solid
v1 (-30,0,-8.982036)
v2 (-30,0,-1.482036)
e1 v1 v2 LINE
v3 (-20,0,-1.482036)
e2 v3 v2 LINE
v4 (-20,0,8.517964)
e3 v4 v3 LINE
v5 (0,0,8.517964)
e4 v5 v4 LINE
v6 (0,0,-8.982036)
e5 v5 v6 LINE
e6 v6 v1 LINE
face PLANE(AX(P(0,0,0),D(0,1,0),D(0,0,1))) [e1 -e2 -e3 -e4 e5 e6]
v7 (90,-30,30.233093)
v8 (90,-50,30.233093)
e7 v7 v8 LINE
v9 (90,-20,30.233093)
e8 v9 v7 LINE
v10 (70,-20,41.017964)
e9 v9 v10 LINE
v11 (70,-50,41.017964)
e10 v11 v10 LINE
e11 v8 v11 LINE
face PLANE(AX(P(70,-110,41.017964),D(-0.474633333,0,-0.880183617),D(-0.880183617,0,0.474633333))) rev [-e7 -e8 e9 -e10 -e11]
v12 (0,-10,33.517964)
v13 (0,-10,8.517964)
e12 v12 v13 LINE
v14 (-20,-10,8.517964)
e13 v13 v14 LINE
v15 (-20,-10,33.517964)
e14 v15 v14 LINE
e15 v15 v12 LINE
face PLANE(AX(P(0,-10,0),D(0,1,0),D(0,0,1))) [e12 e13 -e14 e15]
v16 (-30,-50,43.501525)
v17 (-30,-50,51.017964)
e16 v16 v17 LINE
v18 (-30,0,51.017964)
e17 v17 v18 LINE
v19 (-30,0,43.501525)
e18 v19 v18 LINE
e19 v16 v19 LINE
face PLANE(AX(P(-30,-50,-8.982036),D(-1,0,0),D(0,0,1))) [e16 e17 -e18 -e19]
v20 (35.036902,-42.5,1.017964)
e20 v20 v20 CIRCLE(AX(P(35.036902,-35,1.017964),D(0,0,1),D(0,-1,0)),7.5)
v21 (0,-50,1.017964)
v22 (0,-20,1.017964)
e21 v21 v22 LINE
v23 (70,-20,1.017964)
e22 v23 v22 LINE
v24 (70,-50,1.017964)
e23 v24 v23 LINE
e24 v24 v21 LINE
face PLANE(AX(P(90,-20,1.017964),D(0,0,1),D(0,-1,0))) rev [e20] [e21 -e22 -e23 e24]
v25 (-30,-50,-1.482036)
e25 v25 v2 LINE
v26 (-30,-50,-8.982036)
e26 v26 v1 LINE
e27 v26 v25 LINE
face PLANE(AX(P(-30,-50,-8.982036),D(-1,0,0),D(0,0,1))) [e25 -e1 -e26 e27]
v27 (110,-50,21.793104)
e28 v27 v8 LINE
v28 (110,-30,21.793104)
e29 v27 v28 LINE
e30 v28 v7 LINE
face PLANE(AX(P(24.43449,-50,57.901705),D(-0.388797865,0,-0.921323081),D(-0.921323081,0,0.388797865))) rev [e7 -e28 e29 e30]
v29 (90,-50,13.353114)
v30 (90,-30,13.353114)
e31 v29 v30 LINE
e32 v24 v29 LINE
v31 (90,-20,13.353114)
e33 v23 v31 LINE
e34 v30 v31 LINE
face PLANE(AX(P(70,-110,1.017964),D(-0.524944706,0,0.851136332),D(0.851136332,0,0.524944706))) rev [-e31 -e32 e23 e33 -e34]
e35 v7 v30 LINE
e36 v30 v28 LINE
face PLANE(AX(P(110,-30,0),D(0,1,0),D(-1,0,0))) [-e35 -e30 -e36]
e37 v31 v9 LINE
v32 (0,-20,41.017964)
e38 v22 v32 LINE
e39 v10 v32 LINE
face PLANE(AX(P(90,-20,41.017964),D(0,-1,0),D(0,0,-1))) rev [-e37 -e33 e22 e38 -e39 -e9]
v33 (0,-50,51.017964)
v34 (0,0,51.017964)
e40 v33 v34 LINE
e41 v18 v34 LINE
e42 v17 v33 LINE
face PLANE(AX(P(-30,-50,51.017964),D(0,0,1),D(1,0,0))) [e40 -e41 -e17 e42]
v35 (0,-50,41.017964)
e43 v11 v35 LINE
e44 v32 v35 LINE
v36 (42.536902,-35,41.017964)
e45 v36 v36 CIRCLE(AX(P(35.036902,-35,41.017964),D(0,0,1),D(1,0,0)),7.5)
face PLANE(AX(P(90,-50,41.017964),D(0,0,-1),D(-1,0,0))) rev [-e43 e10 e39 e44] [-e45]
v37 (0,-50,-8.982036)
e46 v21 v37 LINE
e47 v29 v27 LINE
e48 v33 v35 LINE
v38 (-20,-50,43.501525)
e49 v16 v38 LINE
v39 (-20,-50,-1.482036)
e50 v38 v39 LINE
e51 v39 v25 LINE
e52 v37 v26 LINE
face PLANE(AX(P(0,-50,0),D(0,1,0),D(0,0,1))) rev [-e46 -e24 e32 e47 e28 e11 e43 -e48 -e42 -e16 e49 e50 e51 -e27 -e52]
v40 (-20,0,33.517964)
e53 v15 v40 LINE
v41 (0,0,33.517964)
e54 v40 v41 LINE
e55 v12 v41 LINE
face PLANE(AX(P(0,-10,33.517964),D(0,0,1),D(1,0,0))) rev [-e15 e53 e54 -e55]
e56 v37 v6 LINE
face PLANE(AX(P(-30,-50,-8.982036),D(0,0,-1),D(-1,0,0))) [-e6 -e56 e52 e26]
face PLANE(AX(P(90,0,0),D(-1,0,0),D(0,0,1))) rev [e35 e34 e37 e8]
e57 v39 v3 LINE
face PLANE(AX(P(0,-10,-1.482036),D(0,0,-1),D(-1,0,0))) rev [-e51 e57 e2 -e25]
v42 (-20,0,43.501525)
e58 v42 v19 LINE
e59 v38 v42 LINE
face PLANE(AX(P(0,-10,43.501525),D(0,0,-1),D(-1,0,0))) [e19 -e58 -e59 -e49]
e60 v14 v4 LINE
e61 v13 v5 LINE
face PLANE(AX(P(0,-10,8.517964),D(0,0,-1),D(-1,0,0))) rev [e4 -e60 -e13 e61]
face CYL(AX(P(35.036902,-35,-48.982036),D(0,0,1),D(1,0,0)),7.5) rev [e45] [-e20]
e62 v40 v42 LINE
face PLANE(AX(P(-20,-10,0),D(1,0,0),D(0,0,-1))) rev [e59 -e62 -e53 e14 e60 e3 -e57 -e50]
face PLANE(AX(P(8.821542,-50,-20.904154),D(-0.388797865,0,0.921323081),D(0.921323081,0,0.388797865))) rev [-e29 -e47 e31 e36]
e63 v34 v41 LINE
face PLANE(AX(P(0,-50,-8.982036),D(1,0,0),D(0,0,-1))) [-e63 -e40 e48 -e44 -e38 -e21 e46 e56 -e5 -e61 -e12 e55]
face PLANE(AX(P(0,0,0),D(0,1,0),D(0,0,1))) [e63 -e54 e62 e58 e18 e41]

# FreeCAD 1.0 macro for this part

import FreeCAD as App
import Part
import Sketcher

doc = App.newDocument("Part")
body = doc.addObject("PartDesign::Body", "Body")

sketch1 = doc.addObject("Sketcher::SketchObject", "Sketch")
body.addObject(sketch1)
sketch1.AttachmentSupport = (doc.XZ_Plane, [""])
sketch1.MapMode = "FlatFace"
sketch1.addGeometry(Part.LineSegment(App.Vector(-30, -9, 0), App.Vector(-30, 51, 0)), False)
sketch1.addGeometry(Part.LineSegment(App.Vector(-30, 51, 0), App.Vector(0, 51, 0)), False)
sketch1.addGeometry(Part.LineSegment(App.Vector(0, 51, 0), App.Vector(0, -9, 0)), False)
sketch1.addGeometry(Part.LineSegment(App.Vector(0, -9, 0), App.Vector(-30, -9, 0)), False)
sketch1.addConstraint(Sketcher.Constraint("Coincident", 0, 2, 1, 1))
sketch1.addConstraint(Sketcher.Constraint("Coincident", 1, 2, 2, 1))
sketch1.addConstraint(Sketcher.Constraint("Coincident", 2, 2, 3, 1))
sketch1.addConstraint(Sketcher.Constraint("Coincident", 3, 2, 0, 1))
sketch1.addConstraint(Sketcher.Constraint("Vertical", 0))
sketch1.addConstraint(Sketcher.Constraint("Horizontal", 1))
sketch1.addConstraint(Sketcher.Constraint("Vertical", 2))
sketch1.addConstraint(Sketcher.Constraint("Horizontal", 3))
sketch1.addConstraint(Sketcher.Constraint("PointOnObject", 1, 2, -2))
sketch1.addConstraint(Sketcher.Constraint("DistanceX", 1, 1, 1, 2, 30.0))
sketch1.addConstraint(Sketcher.Constraint("DistanceY", 0, 1, 0, 2, 60.0))
sketch1.addConstraint(Sketcher.Constraint("DistanceY", -1, 1, 0, 2, 51.017964))
pad1 = doc.addObject("PartDesign::Pad", "Pad")
body.addObject(pad1)
pad1.Profile = sketch1
pad1.Length = 50

sketch2 = doc.addObject("Sketcher::SketchObject", "Sketch001")
body.addObject(sketch2)
sketch2.AttachmentSupport = (doc.YZ_Plane, [""])
sketch2.MapMode = "FlatFace"
sketch2.addGeometry(Part.LineSegment(App.Vector(-50, 41, 0), App.Vector(-50, 1, 0)), False)
sketch2.addGeometry(Part.LineSegment(App.Vector(-50, 1, 0), App.Vector(-20, 1, 0)), False)
sketch2.addGeometry(Part.LineSegment(App.Vector(-20, 1, 0), App.Vector(-20, 41, 0)), False)
sketch2.addGeometry(Part.LineSegment(App.Vector(-20, 41, 0), App.Vector(-50, 41, 0)), False)
sketch2.addConstraint(Sketcher.Constraint("Coincident", 0, 2, 1, 1))
sketch2.addConstraint(Sketcher.Constraint("Coincident", 1, 2, 2, 1))
sketch2.addConstraint(Sketcher.Constraint("Coincident", 2, 2, 3, 1))
sketch2.addConstraint(Sketcher.Constraint("Coincident", 3, 2, 0, 1))
sketch2.addConstraint(Sketcher.Constraint("Vertical", 0))
sketch2.addConstraint(Sketcher.Constraint("Horizontal", 1))
sketch2.addConstraint(Sketcher.Constraint("Vertical", 2))
sketch2.addConstraint(Sketcher.Constraint("Horizontal", 3))
sketch2.addConstraint(Sketcher.Constraint("DistanceX", 1, 1, 1, 2, 30.0))
sketch2.addConstraint(Sketcher.Constraint("DistanceY", 0, 2, 0, 1, 40.0))
sketch2.addConstraint(Sketcher.Constraint("DistanceX", 0, 2, -1, 1, 50.0))
sketch2.addConstraint(Sketcher.Constraint("DistanceY", -1, 1, 0, 2, 1.017964))
pad2 = doc.addObject("PartDesign::Pad", "Pad001")
body.addObject(pad2)
pad2.Profile = sketch2
pad2.Length = 90

sketch3 = doc.addObject("Sketcher::SketchObject", "Sketch002")
body.addObject(sketch3)
sketch3.AttachmentSupport = (doc.XY_Plane, [""])
sketch3.MapMode = "FlatFace"
sketch3.AttachmentOffset = App.Placement(App.Vector(0, 0, 41.017964), App.Rotation())
sketch3.addGeometry(Part.Circle(App.Vector(35, -35, 0), App.Vector(0, 0, 1), 8), False)
sketch3.addConstraint(Sketcher.Constraint("Diameter", 0, 15.0))
sketch3.addConstraint(Sketcher.Constraint("DistanceY", 0, 3, -1, 1, 35.0))
sketch3.addConstraint(Sketcher.Constraint("DistanceX", -1, 1, 0, 3, 35.036902))
pocket1 = doc.addObject("PartDesign::Pocket", "Pocket")
body.addObject(pocket1)
pocket1.Profile = sketch3
pocket1.Length = 90

sketch4 = doc.addObject("Sketcher::SketchObject", "Sketch003")
body.addObject(sketch4)
sketch4.AttachmentSupport = (doc.XZ_Plane, [""])
sketch4.MapMode = "FlatFace"
sketch4.AttachmentOffset = App.Placement(App.Vector(0, 0, 20), App.Rotation())
sketch4.addGeometry(Part.LineSegment(App.Vector(70, 1, 0), App.Vector(90, 13, 0)), False)
sketch4.addGeometry(Part.LineSegment(App.Vector(90, 13, 0), App.Vector(90, 1, 0)), False)
sketch4.addGeometry(Part.LineSegment(App.Vector(90, 1, 0), App.Vector(70, 1, 0)), False)
sketch4.addGeometry(Part.LineSegment(App.Vector(90, 30, 0), App.Vector(70, 41, 0)), False)
sketch4.addGeometry(Part.LineSegment(App.Vector(70, 41, 0), App.Vector(90, 41, 0)), False)
sketch4.addGeometry(Part.LineSegment(App.Vector(90, 41, 0), App.Vector(90, 30, 0)), False)
sketch4.addConstraint(Sketcher.Constraint("Coincident", 0, 2, 1, 1))
sketch4.addConstraint(Sketcher.Constraint("Coincident", 1, 2, 2, 1))
sketch4.addConstraint(Sketcher.Constraint("Coincident", 2, 2, 0, 1))
sketch4.addConstraint(Sketcher.Constraint("Coincident", 3, 2, 4, 1))
sketch4.addConstraint(Sketcher.Constraint("Coincident", 4, 2, 5, 1))
sketch4.addConstraint(Sketcher.Constraint("Coincident", 5, 2, 3, 1))
sketch4.addConstraint(Sketcher.Constraint("Vertical", 1))
sketch4.addConstraint(Sketcher.Constraint("Horizontal", 2))
sketch4.addConstraint(Sketcher.Constraint("Horizontal", 4))
sketch4.addConstraint(Sketcher.Constraint("Vertical", 5))
sketch4.addConstraint(Sketcher.Constraint("Vertical", 2, 2, 3, 2))
sketch4.addConstraint(Sketcher.Constraint("Vertical", 1, 2, 4, 2))
sketch4.addConstraint(Sketcher.Constraint("DistanceX", 2, 2, 2, 1, 20.0))
sketch4.addConstraint(Sketcher.Constraint("DistanceX", -1, 1, 0, 2, 90.0))
sketch4.addConstraint(Sketcher.Constraint("DistanceY", 2, 2, 3, 2, 40.0))
sketch4.addConstraint(Sketcher.Constraint("Distance", 0, 23.497998))
sketch4.addConstraint(Sketcher.Constraint("DistanceY", 5, 2, 5, 1, 10.784871))
sketch4.addConstraint(Sketcher.Constraint("DistanceY", -1, 1, 0, 2, 13.353114))
pocket2 = doc.addObject("PartDesign::Pocket", "Pocket001")
body.addObject(pocket2)
pocket2.Profile = sketch4
pocket2.Length = 90
pocket2.Reversed = True

sketch5 = doc.addObject("Sketcher::SketchObject", "Sketch004")
body.addObject(sketch5)
sketch5.AttachmentSupport = (doc.YZ_Plane, [""])
sketch5.MapMode = "FlatFace"
sketch5.AttachmentOffset = App.Placement(App.Vector(0, 0, 90), App.Rotation())
sketch5.addGeometry(Part.LineSegment(App.Vector(-30, 30, 0), App.Vector(-50, 30, 0)), False)
sketch5.addGeometry(Part.LineSegment(App.Vector(-50, 30, 0), App.Vector(-50, 13, 0)), False)
sketch5.addGeometry(Part.LineSegment(App.Vector(-50, 13, 0), App.Vector(-30, 13, 0)), False)
sketch5.addGeometry(Part.LineSegment(App.Vector(-30, 13, 0), App.Vector(-30, 30, 0)), False)
sketch5.addConstraint(Sketcher.Constraint("Coincident", 0, 2, 1, 1))
sketch5.addConstraint(Sketcher.Constraint("Coincident", 1, 2, 2, 1))
sketch5.addConstraint(Sketcher.Constraint("Coincident", 2, 2, 3, 1))
sketch5.addConstraint(Sketcher.Constraint("Coincident", 3, 2, 0, 1))
sketch5.addConstraint(Sketcher.Constraint("Horizontal", 0))
sketch5.addConstraint(Sketcher.Constraint("Vertical", 1))
sketch5.addConstraint(Sketcher.Constraint("Horizontal", 2))
sketch5.addConstraint(Sketcher.Constraint("Vertical", 3))
sketch5.addConstraint(Sketcher.Constraint("DistanceX", 0, 2, 0, 1, 20.0))
sketch5.addConstraint(Sketcher.Constraint("DistanceX", 0, 2, -1, 1, 50.0))
sketch5.addConstraint(Sketcher.Constraint("DistanceY", 1, 2, 1, 1, 16.879979))
sketch5.addConstraint(Sketcher.Constraint("DistanceY", -1, 1, 0, 2, 30.233093))
pad3 = doc.addObject("PartDesign::Pad", "Pad002")
body.addObject(pad3)
pad3.Profile = sketch5
pad3.Length = 20

sketch6 = doc.addObject("Sketcher::SketchObject", "Sketch005")
body.addObject(sketch6)
sketch6.AttachmentSupport = (doc.XZ_Plane, [""])
sketch6.MapMode = "FlatFace"
sketch6.AttachmentOffset = App.Placement(App.Vector(0, 0, 30), App.Rotation())
sketch6.addGeometry(Part.LineSegment(App.Vector(110, 13, 0), App.Vector(90, 13, 0)), False)
sketch6.addGeometry(Part.LineSegment(App.Vector(90, 13, 0), App.Vector(110, 22, 0)), False)
sketch6.addGeometry(Part.LineSegment(App.Vector(110, 22, 0), App.Vector(110, 13, 0)), False)
sketch6.addGeometry(Part.LineSegment(App.Vector(110, 30, 0), App.Vector(110, 22, 0)), False)
sketch6.addGeometry(Part.LineSegment(App.Vector(110, 22, 0), App.Vector(90, 30, 0)), False)
sketch6.addGeometry(Part.LineSegment(App.Vector(90, 30, 0), App.Vector(110, 30, 0)), False)
sketch6.addConstraint(Sketcher.Constraint("Coincident", 0, 2, 1, 1))
sketch6.addConstraint(Sketcher.Constraint("Coincident", 1, 2, 2, 1))
sketch6.addConstraint(Sketcher.Constraint("Coincident", 2, 2, 0, 1))
sketch6.addConstraint(Sketcher.Constraint("Coincident", 3, 2, 4, 1))
sketch6.addConstraint(Sketcher.Constraint("Coincident", 4, 2, 5, 1))
sketch6.addConstraint(Sketcher.Constraint("Coincident", 5, 2, 3, 1))
sketch6.addConstraint(Sketcher.Constraint("Horizontal", 0))
sketch6.addConstraint(Sketcher.Constraint("Vertical", 2))
sketch6.addConstraint(Sketcher.Constraint("Vertical", 3))
sketch6.addConstraint(Sketcher.Constraint("Horizontal", 5))
sketch6.addConstraint(Sketcher.Constraint("Coincident", 3, 2, 1, 2))
sketch6.addConstraint(Sketcher.Constraint("Vertical", 0, 2, 4, 2))
sketch6.addConstraint(Sketcher.Constraint("Equal", 2, 3))
sketch6.addConstraint(Sketcher.Constraint("DistanceX", 0, 2, 0, 1, 20.0))
sketch6.addConstraint(Sketcher.Constraint("DistanceX", -1, 1, 0, 2, 90.0))
sketch6.addConstraint(Sketcher.Constraint("DistanceY", 2, 2, 2, 1, 8.43999))
sketch6.addConstraint(Sketcher.Constraint("DistanceY", -1, 1, 0, 2, 13.353114))
pocket3 = doc.addObject("PartDesign::Pocket", "Pocket002")
body.addObject(pocket3)
pocket3.Profile = sketch6
pocket3.Length = 20
pocket3.Reversed = True

sketch7 = doc.addObject("Sketcher::SketchObject", "Sketch006")
body.addObject(sketch7)
sketch7.AttachmentSupport = (doc.XZ_Plane, [""])
sketch7.MapMode = "FlatFace"
sketch7.addGeometry(Part.LineSegment(App.Vector(-30, -1, 0), App.Vector(-30, 44, 0)), False)
sketch7.addGeometry(Part.LineSegment(App.Vector(-30, 44, 0), App.Vector(-20, 44, 0)), False)
sketch7.addGeometry(Part.LineSegment(App.Vector(-20, 44, 0), App.Vector(-20, 34, 0)), False)
sketch7.addGeometry(Part.LineSegment(App.Vector(-20, 34, 0), App.Vector(0, 34, 0)), False)
sketch7.addGeometry(Part.LineSegment(App.Vector(0, 34, 0), App.Vector(0, 9, 0)), False)
sketch7.addGeometry(Part.LineSegment(App.Vector(0, 9, 0), App.Vector(-20, 9, 0)), False)
sketch7.addGeometry(Part.LineSegment(App.Vector(-20, 9, 0), App.Vector(-20, -1, 0)), False)
sketch7.addGeometry(Part.LineSegment(App.Vector(-20, -1, 0), App.Vector(-30, -1, 0)), False)
sketch7.addConstraint(Sketcher.Constraint("Coincident", 0, 2, 1, 1))
sketch7.addConstraint(Sketcher.Constraint("Coincident", 1, 2, 2, 1))
sketch7.addConstraint(Sketcher.Constraint("Coincident", 2, 2, 3, 1))
sketch7.addConstraint(Sketcher.Constraint("Coincident", 3, 2, 4, 1))
sketch7.addConstraint(Sketcher.Constraint("Coincident", 4, 2, 5, 1))
sketch7.addConstraint(Sketcher.Constraint("Coincident", 5, 2, 6, 1))
sketch7.addConstraint(Sketcher.Constraint("Coincident", 6, 2, 7, 1))
sketch7.addConstraint(Sketcher.Constraint("Coincident", 7, 2, 0, 1))
sketch7.addConstraint(Sketcher.Constraint("Vertical", 0))
sketch7.addConstraint(Sketcher.Constraint("Horizontal", 1))
sketch7.addConstraint(Sketcher.Constraint("Vertical", 2))
sketch7.addConstraint(Sketcher.Constraint("Horizontal", 3))
sketch7.addConstraint(Sketcher.Constraint("Vertical", 4))
sketch7.addConstraint(Sketcher.Constraint("Horizontal", 5))
sketch7.addConstraint(Sketcher.Constraint("Vertical", 6))
sketch7.addConstraint(Sketcher.Constraint("Horizontal", 7))
sketch7.addConstraint(Sketcher.Constraint("PointOnObject", 3, 2, -2))
sketch7.addConstraint(Sketcher.Constraint("Vertical", 2, 2, 5, 2))
sketch7.addConstraint(Sketcher.Constraint("Equal", 7, 6))
sketch7.addConstraint(Sketcher.Constraint("DistanceX", 1, 1, 1, 2, 10.0))
sketch7.addConstraint(Sketcher.Constraint("DistanceX", 3, 1, 3, 2, 20.0))
sketch7.addConstraint(Sketcher.Constraint("DistanceY", 4, 2, 4, 1, 25.0))
sketch7.addConstraint(Sketcher.Constraint("DistanceY", 0, 1, 0, 2, 44.983561))
sketch7.addConstraint(Sketcher.Constraint("DistanceY", -1, 1, 0, 2, 43.501525))
pocket4 = doc.addObject("PartDesign::Pocket", "Pocket003")
body.addObject(pocket4)
pocket4.Profile = sketch7
pocket4.Length = 10
pocket4.Reversed = True

sketch8 = doc.addObject("Sketcher::SketchObject", "Sketch007")
body.addObject(sketch8)
sketch8.AttachmentSupport = (doc.XZ_Plane, [""])
sketch8.MapMode = "FlatFace"
sketch8.AttachmentOffset = App.Placement(App.Vector(0, 0, 10), App.Rotation())
sketch8.addGeometry(Part.LineSegment(App.Vector(-30, -1, 0), App.Vector(-30, 44, 0)), False)
sketch8.addGeometry(Part.LineSegment(App.Vector(-30, 44, 0), App.Vector(-20, 44, 0)), False)
sketch8.addGeometry(Part.LineSegment(App.Vector(-20, 44, 0), App.Vector(-20, -1, 0)), False)
sketch8.addGeometry(Part.LineSegment(App.Vector(-20, -1, 0), App.Vector(-30, -1, 0)), False)
sketch8.addConstraint(Sketcher.Constraint("Coincident", 0, 2, 1, 1))
sketch8.addConstraint(Sketcher.Constraint("Coincident", 1, 2, 2, 1))
sketch8.addConstraint(Sketcher.Constraint("Coincident", 2, 2, 3, 1))
sketch8.addConstraint(Sketcher.Constraint("Coincident", 3, 2, 0, 1))
sketch8.addConstraint(Sketcher.Constraint("Vertical", 0))
sketch8.addConstraint(Sketcher.Constraint("Horizontal", 1))
sketch8.addConstraint(Sketcher.Constraint("Vertical", 2))
sketch8.addConstraint(Sketcher.Constraint("Horizontal", 3))
sketch8.addConstraint(Sketcher.Constraint("DistanceX", 1, 1, 1, 2, 10.0))
sketch8.addConstraint(Sketcher.Constraint("DistanceX", 0, 2, -1, 1, 30.0))
sketch8.addConstraint(Sketcher.Constraint("DistanceY", 0, 1, 0, 2, 44.983561))
sketch8.addConstraint(Sketcher.Constraint("DistanceY", -1, 1, 0, 2, 43.501525))
pocket5 = doc.addObject("PartDesign::Pocket", "Pocket004")
body.addObject(pocket5)
pocket5.Profile = sketch8
pocket5.Length = 50
pocket5.Reversed = True

doc.recompute()
